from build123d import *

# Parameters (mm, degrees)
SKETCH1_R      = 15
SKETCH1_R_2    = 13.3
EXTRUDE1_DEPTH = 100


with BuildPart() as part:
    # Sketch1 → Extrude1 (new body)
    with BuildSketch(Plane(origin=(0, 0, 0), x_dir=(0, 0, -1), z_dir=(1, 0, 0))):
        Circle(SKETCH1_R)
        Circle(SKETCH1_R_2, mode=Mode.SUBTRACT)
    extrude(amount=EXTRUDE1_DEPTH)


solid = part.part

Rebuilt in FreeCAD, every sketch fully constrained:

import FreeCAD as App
import Part
import Sketcher

V = App.Vector
Q = App.Units.Quantity

doc = App.newDocument("Part")
body = doc.addObject("PartDesign::Body", "Body")

sketch1 = doc.addObject("Sketcher::SketchObject", "Sketch")
body.addObject(sketch1)
sketch1.AttachmentSupport = (doc.YZ_Plane, [""])
sketch1.MapMode = "FlatFace"
sketch1.addGeometry(Part.Circle(V(0, 0, 0), V(0, 0, 1), 15), False)
sketch1.addGeometry(Part.Circle(V(0, 0, 0), V(0, 0, 1), 13.3), False)
sketch1.addConstraint(Sketcher.Constraint("Coincident", 0, 3, -1, 1))
sketch1.addConstraint(Sketcher.Constraint("Coincident", 1, 3, -1, 1))
sketch1.addConstraint(Sketcher.Constraint("Diameter", 0, Q("30 mm")))
sketch1.addConstraint(Sketcher.Constraint("Diameter", 1, Q("26.6 mm")))
pad1 = doc.addObject("PartDesign::Pad", "Pad")
body.addObject(pad1)
pad1.Profile = sketch1
pad1.Length = 100

doc.recompute()
